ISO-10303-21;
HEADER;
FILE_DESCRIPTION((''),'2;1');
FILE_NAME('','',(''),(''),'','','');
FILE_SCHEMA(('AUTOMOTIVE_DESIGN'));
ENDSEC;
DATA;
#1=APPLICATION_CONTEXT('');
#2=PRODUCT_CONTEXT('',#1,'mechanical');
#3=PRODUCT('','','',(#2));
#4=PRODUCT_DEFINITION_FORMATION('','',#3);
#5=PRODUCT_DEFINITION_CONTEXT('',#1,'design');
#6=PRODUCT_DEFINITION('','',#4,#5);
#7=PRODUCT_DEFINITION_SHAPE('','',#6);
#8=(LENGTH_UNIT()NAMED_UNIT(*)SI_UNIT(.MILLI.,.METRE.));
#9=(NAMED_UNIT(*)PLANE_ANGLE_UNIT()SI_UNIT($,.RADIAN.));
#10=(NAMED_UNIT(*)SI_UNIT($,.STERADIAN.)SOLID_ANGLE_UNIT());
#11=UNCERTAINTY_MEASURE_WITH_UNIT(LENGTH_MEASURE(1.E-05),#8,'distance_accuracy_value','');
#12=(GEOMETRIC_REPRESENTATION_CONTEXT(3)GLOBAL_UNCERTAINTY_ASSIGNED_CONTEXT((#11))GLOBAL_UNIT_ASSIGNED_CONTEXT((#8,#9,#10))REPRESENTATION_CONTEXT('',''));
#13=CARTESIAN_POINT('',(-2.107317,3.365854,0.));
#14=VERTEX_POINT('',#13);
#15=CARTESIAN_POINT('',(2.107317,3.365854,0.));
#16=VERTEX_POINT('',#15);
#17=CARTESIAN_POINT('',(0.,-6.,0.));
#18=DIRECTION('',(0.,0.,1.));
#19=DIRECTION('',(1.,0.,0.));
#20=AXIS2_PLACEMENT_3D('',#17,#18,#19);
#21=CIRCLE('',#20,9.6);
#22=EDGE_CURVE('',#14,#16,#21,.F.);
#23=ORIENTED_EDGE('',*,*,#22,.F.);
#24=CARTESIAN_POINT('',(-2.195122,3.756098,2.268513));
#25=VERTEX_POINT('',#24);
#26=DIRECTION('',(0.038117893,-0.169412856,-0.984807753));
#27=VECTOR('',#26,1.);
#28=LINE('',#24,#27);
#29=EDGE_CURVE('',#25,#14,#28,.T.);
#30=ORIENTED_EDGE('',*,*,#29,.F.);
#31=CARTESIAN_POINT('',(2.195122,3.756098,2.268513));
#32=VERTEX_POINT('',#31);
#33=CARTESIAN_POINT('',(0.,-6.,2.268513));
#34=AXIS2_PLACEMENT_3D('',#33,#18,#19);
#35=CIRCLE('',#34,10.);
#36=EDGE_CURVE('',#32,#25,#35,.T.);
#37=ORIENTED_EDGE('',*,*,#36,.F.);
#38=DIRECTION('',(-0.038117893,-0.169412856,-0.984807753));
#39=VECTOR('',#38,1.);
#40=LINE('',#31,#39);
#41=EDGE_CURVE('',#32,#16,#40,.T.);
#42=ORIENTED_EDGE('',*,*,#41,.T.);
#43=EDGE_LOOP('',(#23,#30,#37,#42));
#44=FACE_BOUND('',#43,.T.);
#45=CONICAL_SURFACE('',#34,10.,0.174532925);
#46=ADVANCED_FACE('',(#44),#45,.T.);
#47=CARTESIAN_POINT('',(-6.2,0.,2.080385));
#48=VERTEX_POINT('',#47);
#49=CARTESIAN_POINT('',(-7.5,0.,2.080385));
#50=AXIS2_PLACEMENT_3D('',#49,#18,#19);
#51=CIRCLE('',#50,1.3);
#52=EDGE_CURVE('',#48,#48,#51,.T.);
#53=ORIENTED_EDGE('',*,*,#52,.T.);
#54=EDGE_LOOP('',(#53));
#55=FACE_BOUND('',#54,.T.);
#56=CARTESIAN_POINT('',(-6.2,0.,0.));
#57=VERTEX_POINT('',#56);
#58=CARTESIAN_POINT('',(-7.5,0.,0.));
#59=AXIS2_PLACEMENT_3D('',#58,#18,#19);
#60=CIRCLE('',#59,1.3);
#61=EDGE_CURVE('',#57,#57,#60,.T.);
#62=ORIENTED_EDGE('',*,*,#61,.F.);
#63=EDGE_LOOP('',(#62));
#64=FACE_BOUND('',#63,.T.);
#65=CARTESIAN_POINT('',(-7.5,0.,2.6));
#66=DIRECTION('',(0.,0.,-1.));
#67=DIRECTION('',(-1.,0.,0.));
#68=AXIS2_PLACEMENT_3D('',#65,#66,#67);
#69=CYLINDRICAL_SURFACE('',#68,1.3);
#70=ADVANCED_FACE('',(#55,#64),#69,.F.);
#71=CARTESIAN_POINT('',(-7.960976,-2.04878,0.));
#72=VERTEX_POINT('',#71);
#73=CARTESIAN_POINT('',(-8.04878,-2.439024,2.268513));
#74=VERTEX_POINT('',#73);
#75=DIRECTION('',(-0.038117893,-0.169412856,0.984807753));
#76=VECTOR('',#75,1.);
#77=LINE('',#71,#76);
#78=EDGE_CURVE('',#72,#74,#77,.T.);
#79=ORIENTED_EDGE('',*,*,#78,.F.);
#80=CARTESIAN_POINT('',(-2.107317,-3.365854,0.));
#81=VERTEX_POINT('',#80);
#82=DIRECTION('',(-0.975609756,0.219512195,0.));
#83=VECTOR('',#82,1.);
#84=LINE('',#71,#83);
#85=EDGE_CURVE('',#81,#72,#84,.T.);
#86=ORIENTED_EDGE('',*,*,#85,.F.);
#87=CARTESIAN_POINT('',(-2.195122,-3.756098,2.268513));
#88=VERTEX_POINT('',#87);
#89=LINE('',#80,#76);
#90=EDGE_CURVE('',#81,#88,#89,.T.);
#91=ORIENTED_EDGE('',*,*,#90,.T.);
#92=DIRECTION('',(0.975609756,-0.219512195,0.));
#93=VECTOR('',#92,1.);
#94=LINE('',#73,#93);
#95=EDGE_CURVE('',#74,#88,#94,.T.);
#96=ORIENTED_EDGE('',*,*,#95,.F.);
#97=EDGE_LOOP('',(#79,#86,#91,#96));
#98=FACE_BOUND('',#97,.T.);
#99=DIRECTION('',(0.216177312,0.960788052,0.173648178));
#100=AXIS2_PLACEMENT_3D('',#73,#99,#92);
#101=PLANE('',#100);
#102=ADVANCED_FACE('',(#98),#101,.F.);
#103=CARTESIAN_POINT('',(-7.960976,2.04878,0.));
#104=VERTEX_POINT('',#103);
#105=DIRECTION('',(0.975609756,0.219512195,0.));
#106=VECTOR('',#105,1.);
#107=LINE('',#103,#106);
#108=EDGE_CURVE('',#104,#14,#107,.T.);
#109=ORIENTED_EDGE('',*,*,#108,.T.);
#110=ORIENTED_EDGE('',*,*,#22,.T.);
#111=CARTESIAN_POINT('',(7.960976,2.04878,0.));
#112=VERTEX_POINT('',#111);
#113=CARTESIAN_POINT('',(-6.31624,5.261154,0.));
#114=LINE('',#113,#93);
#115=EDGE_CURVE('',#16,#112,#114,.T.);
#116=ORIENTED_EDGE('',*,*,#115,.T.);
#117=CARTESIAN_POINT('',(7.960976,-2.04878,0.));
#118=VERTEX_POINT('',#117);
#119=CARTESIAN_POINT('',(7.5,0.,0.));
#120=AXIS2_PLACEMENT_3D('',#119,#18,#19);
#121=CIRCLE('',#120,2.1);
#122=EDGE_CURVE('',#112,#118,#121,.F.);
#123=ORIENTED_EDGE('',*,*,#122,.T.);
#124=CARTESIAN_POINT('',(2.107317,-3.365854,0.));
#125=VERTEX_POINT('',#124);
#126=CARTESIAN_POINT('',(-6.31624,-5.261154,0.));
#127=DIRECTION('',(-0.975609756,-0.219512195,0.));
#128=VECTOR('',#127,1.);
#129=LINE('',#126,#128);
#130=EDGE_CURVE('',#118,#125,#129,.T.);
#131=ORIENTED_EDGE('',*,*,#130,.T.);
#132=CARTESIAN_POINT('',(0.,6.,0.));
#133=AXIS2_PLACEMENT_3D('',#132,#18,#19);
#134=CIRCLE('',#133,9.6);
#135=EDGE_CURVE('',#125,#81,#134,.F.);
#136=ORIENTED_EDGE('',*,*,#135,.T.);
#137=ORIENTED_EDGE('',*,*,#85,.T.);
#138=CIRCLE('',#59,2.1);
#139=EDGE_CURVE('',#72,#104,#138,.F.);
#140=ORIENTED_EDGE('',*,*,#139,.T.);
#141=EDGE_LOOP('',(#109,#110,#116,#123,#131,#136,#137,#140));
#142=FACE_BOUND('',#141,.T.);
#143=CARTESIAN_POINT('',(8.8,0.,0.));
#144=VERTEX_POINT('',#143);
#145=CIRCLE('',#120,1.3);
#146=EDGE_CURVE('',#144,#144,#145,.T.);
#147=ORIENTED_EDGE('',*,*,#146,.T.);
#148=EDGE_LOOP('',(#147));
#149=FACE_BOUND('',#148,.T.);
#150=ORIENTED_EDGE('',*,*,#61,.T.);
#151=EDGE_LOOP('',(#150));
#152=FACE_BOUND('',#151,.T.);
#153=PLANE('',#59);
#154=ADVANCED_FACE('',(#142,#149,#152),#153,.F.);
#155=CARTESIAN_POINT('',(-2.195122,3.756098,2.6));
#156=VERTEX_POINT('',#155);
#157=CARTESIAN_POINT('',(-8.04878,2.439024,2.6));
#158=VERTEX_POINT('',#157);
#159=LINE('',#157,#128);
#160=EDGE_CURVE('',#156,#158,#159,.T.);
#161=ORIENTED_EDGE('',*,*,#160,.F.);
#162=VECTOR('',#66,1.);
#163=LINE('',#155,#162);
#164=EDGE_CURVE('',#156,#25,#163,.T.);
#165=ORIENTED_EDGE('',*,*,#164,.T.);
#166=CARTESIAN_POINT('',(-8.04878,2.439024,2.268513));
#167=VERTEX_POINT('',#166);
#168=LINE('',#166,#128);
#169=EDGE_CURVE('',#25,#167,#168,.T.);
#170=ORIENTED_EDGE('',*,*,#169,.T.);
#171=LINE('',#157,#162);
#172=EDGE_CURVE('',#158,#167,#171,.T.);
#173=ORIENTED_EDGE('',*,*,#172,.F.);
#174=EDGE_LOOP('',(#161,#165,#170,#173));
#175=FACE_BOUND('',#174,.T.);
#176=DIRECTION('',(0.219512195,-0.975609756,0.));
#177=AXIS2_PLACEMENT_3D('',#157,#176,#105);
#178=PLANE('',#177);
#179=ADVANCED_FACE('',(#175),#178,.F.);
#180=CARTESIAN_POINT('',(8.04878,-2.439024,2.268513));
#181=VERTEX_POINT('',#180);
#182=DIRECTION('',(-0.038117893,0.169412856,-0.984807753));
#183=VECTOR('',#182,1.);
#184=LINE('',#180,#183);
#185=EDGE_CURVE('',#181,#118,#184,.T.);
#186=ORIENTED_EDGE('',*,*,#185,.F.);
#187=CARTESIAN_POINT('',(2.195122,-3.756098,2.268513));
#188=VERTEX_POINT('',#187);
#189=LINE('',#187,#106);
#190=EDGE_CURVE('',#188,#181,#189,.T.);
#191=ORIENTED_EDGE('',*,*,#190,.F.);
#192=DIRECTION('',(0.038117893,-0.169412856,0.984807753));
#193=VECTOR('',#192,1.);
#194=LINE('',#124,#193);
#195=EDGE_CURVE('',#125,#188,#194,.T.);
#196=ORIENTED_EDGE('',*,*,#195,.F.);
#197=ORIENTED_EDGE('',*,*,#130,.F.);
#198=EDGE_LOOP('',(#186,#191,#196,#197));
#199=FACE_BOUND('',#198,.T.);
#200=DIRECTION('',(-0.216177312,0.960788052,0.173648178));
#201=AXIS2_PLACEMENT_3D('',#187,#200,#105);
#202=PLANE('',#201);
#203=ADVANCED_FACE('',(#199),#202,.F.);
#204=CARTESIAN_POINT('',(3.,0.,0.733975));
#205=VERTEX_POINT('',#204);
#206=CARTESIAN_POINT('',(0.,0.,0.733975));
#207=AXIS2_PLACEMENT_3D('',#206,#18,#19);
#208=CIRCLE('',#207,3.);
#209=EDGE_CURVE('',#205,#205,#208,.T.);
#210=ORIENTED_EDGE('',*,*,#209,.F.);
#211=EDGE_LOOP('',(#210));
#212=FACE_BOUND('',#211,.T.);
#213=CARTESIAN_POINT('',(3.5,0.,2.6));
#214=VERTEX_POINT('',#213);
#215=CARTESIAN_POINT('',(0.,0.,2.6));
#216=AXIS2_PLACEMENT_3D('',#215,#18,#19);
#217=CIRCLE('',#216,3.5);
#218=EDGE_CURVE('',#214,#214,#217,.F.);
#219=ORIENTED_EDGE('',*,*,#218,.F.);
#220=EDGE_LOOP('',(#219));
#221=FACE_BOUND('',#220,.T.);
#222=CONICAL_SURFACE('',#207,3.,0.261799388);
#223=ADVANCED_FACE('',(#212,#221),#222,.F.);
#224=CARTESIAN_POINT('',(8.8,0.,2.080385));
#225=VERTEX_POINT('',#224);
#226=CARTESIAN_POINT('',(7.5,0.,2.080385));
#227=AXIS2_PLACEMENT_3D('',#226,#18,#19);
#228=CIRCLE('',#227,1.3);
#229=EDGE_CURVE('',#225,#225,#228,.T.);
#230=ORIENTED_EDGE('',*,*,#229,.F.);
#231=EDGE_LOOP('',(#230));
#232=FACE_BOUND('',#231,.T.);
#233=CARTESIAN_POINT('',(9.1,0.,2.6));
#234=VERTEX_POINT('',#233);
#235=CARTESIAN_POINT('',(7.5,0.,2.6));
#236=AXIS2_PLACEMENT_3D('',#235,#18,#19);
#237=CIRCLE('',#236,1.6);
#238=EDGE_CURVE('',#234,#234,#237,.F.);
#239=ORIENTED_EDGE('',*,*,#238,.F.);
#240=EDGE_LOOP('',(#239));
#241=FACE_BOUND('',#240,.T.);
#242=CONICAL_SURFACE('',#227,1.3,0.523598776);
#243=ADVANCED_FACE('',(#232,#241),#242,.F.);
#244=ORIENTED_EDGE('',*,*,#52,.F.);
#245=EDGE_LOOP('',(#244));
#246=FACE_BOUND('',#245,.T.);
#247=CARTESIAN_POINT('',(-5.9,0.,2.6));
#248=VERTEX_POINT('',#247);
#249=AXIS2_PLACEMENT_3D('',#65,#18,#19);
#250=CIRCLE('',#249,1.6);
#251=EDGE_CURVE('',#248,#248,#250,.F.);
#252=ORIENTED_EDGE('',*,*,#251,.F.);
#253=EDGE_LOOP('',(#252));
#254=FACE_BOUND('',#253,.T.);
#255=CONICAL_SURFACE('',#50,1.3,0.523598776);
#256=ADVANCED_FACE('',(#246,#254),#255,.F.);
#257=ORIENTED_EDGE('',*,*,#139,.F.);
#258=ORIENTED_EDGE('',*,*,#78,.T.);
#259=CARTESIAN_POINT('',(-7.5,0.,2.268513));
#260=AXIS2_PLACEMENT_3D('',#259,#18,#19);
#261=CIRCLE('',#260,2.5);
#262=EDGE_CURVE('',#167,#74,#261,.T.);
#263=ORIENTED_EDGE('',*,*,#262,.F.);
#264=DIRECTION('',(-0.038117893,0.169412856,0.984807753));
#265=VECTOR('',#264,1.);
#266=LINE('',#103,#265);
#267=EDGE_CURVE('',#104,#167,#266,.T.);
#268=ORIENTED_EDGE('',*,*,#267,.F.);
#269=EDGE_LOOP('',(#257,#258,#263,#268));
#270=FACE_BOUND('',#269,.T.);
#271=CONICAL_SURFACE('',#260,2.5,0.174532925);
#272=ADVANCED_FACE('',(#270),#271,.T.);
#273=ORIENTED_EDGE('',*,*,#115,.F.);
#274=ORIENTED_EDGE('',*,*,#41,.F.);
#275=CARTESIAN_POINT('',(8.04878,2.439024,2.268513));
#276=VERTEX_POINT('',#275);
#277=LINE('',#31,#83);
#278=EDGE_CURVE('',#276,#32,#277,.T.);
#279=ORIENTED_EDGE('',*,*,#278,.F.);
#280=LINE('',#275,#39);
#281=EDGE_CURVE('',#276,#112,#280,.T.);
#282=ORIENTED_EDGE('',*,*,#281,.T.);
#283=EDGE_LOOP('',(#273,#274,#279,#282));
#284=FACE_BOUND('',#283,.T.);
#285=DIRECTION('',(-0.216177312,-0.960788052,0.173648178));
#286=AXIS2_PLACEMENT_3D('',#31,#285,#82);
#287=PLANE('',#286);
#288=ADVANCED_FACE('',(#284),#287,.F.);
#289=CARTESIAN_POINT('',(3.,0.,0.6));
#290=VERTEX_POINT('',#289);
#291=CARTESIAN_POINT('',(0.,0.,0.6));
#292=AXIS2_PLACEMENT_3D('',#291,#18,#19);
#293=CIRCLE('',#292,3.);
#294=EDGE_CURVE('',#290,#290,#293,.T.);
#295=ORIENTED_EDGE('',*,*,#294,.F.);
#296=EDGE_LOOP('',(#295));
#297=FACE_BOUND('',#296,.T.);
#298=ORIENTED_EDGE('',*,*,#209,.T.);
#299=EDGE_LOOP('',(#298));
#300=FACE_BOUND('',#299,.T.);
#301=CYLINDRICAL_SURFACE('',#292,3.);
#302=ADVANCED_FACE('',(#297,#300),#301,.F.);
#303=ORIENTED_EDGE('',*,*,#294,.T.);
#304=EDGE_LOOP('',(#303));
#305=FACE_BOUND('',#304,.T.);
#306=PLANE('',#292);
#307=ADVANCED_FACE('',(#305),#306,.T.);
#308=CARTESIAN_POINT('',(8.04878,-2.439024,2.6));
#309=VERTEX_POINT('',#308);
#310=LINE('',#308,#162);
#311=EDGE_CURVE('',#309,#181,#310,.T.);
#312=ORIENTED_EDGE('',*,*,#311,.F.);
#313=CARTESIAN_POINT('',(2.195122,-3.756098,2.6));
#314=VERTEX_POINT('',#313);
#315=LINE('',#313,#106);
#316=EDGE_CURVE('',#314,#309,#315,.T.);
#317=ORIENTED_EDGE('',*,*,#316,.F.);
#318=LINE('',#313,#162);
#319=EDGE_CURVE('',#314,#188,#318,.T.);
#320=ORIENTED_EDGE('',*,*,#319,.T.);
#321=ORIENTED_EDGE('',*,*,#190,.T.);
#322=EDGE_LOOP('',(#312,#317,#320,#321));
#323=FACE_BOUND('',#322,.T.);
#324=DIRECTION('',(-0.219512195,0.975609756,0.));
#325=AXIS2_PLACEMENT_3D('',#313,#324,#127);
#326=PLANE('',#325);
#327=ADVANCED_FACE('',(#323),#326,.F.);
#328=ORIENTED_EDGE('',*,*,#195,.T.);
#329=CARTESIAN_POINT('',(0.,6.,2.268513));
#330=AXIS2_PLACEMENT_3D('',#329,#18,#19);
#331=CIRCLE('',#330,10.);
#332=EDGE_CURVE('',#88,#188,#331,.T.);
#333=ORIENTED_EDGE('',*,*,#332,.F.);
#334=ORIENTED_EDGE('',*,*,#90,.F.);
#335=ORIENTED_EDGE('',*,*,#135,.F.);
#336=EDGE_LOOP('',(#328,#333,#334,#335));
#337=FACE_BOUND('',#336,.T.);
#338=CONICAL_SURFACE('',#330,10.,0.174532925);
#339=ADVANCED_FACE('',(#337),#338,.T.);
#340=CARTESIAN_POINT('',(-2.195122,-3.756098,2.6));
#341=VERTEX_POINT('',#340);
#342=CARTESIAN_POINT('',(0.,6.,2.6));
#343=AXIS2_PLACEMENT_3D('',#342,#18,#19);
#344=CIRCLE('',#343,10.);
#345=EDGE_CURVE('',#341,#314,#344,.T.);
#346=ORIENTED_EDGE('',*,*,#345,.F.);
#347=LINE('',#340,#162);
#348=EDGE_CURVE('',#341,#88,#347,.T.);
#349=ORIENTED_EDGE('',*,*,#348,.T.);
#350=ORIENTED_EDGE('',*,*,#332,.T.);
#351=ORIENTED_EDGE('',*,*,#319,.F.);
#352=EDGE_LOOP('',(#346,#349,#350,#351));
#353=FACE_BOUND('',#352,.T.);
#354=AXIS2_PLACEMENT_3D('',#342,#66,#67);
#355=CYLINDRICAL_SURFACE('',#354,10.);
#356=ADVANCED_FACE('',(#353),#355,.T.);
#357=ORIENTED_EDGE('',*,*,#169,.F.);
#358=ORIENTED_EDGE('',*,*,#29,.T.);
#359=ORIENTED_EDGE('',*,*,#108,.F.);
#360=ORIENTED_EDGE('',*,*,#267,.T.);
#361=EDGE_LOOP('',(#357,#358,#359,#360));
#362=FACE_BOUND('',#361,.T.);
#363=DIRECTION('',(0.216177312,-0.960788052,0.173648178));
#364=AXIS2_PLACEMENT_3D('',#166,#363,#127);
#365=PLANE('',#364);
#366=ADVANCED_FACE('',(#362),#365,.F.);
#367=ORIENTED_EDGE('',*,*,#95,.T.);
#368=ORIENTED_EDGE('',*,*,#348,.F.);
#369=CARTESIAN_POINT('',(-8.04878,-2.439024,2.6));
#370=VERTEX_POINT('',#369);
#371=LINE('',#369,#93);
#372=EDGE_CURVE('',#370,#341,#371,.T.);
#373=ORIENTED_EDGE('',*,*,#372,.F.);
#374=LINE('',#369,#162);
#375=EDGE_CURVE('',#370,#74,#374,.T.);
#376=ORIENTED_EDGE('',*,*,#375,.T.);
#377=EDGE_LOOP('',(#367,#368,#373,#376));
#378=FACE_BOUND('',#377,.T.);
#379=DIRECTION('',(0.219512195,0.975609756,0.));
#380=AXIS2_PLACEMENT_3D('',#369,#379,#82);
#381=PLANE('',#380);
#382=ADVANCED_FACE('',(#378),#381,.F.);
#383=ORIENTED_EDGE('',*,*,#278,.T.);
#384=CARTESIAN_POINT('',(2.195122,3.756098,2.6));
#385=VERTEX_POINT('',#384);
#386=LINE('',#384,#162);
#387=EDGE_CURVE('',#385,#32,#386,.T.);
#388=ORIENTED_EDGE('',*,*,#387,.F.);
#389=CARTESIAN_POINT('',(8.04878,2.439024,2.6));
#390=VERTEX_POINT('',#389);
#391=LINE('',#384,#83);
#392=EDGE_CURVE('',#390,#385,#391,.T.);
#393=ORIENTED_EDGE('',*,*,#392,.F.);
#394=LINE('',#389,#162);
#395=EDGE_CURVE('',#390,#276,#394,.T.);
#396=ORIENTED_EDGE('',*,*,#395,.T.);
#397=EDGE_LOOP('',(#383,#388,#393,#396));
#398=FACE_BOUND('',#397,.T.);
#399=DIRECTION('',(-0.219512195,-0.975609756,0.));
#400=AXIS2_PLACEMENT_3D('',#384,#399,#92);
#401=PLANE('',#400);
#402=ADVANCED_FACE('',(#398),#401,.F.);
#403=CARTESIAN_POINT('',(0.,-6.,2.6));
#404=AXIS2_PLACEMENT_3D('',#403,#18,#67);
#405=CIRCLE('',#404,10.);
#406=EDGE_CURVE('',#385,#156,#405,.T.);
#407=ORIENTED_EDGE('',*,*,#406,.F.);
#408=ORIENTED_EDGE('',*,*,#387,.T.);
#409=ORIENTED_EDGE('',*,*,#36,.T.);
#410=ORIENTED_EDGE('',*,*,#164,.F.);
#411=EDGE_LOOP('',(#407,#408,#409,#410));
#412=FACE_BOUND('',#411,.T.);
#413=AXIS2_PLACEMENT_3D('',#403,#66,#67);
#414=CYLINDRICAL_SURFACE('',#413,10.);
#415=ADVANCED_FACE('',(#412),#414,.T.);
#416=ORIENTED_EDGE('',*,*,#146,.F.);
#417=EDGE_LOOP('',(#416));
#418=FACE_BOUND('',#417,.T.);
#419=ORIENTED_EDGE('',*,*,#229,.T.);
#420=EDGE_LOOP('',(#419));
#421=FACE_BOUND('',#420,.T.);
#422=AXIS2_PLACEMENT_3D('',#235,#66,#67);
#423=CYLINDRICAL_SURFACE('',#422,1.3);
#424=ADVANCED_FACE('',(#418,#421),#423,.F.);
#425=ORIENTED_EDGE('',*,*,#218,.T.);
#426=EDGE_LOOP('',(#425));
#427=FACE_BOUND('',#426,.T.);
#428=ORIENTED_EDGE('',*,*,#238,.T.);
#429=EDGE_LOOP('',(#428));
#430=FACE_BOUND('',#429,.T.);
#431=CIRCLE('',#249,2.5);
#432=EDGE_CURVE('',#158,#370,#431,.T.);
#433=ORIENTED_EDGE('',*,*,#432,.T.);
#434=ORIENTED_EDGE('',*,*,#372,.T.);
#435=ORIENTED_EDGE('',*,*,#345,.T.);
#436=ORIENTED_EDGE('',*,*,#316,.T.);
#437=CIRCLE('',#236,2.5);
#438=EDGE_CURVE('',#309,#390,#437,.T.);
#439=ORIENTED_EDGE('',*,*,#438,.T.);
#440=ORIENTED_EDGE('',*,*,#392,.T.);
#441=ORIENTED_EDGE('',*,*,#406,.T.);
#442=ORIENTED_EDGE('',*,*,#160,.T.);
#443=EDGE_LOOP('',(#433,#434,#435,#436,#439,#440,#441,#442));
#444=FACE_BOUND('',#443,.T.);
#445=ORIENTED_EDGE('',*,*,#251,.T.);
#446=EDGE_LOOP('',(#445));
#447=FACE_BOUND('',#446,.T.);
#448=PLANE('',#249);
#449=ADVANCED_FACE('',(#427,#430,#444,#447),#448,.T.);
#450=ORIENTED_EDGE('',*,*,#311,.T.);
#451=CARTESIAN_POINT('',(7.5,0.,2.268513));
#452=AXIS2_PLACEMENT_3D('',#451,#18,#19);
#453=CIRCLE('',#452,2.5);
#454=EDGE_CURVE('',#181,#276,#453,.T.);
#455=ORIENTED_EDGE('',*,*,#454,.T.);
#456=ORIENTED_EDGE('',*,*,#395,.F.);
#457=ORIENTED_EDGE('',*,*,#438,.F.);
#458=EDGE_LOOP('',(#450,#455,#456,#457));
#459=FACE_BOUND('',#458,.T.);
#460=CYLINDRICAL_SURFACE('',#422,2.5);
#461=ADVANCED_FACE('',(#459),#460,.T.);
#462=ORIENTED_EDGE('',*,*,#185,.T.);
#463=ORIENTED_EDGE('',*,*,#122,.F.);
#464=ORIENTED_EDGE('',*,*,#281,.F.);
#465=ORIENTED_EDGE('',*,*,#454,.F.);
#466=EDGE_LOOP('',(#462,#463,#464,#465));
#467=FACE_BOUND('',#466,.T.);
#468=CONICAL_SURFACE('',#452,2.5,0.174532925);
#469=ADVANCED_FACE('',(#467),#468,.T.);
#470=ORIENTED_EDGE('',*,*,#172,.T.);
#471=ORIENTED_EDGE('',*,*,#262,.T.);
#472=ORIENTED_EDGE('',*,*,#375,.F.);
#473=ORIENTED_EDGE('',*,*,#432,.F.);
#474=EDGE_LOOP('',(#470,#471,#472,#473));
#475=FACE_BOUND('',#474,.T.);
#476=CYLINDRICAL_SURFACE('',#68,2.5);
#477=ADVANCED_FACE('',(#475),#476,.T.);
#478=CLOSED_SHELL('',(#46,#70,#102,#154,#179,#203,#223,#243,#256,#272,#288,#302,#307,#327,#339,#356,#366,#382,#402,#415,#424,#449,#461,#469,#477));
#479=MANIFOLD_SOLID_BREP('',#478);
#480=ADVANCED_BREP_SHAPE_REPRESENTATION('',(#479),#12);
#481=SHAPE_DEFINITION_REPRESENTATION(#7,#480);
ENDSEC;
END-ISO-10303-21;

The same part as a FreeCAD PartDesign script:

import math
import FreeCAD as App
import Part
import Sketcher

V = App.Vector


def edges_at(feature, points):
    """Names of the edges that pass closest to the given points."""
    edges = feature.Shape.Edges
    near = lambda p: min(range(len(edges)), key=lambda i: edges[i].distToShape(Part.Vertex(*p))[0])
    return sorted({f"Edge{near(p) + 1}" for p in points})

doc = App.newDocument("Part")
body = doc.addObject("PartDesign::Body", "Body")

sketch1 = body.newObject("Sketcher::SketchObject", "Sketch")
sketch1.AttachmentSupport = (doc.getObject("XY_Plane"), [""])
sketch1.MapMode = "FlatFace"
sketch1.addGeometry([
    Part.LineSegment(V(-2.2, 3.8, 0), V(-8, 2.4, 0)),
    Part.ArcOfCircle(Part.Circle(V(-7.5, 0, 0), V(0, 0, 1), 2.5), math.radians(103), math.radians(257)),
    Part.LineSegment(V(-8, -2.4, 0), V(-2.2, -3.8, 0)),
    Part.ArcOfCircle(Part.Circle(V(0, 6, 0), V(0, 0, 1), 10), math.radians(-103), math.radians(-77)),
    Part.LineSegment(V(2.2, -3.8, 0), V(8, -2.4, 0)),
    Part.ArcOfCircle(Part.Circle(V(7.5, 0, 0), V(0, 0, 1), 2.5), math.radians(-77), math.radians(77)),
    Part.LineSegment(V(8, 2.4, 0), V(2.2, 3.8, 0)),
    Part.ArcOfCircle(Part.Circle(V(0, -6, 0), V(0, 0, 1), 10), math.radians(77), math.radians(103)),
    Part.Circle(V(7.5, 0, 0), V(0, 0, 1), 1.3),
    Part.Circle(V(-7.5, 0, 0), V(0, 0, 1), 1.3),
], False)
sketch1.addConstraint([
    Sketcher.Constraint("Tangent", 0, 2, 1, 1),
    Sketcher.Constraint("Tangent", 1, 2, 2, 1),
    Sketcher.Constraint("Tangent", 2, 2, 3, 1),
    Sketcher.Constraint("Tangent", 3, 2, 4, 1),
    Sketcher.Constraint("Tangent", 4, 2, 5, 1),
    Sketcher.Constraint("Tangent", 5, 2, 6, 1),
    Sketcher.Constraint("Tangent", 6, 2, 7, 1),
    Sketcher.Constraint("Tangent", 7, 2, 0, 1),
    Sketcher.Constraint("Coincident", 8, 3, 5, 3),
    Sketcher.Constraint("Coincident", 9, 3, 1, 3),
    Sketcher.Constraint("Equal", 1, 5),
    Sketcher.Constraint("Equal", 3, 7),
    Sketcher.Constraint("Equal", 8, 9),
    Sketcher.Constraint("Symmetric", 1, 3, 5, 3, -1, 1),
    Sketcher.Constraint("Symmetric", 3, 3, 7, 3, -1, 1),
    Sketcher.Constraint("Symmetric", 2, 2, 3, 2, -2),
    Sketcher.Constraint("Radius", 3, 10.0),
    Sketcher.Constraint("Diameter", 8, 2.6),
    Sketcher.Constraint("Radius", 1, 2.5),
    Sketcher.Constraint("Distance", 0, 6.0),
    Sketcher.Constraint("DistanceY", -1, 1, 3, 3, 6.0),
])
pad1 = body.newObject("PartDesign::Pad", "Pad")
pad1.Profile = sketch1
pad1.Length = 2.6

sketch2 = body.newObject("Sketcher::SketchObject", "Sketch001")
sketch2.AttachmentSupport = (doc.getObject("XY_Plane"), [""])
sketch2.MapMode = "FlatFace"
sketch2.AttachmentOffset = App.Placement(V(0, 0, 2.6), App.Rotation())
sketch2.addGeometry(Part.Circle(V(0, 0, 0), V(0, 0, 1), 3), False)
sketch2.addConstraint([
    Sketcher.Constraint("Coincident", 0, 3, -1, 1),
    Sketcher.Constraint("Diameter", 0, 6.0),
])
pocket1 = body.newObject("PartDesign::Pocket", "Pocket")
pocket1.Profile = sketch2
pocket1.Length = 2
doc.recompute()

chamfer = body.newObject("PartDesign::Chamfer", "Chamfer")
chamfer.Base = (pocket1, edges_at(pocket1, [
    (-5.122, -3.098, 0),
    (-10, 0, 0),
    (-5.122, 3.098, 0),
    (0, 4, 0),
    (5.122, 3.098, 0),
    (10, 0, 0),
    (5.122, -3.098, 0),
    (0, -4, 0),
]))
chamfer.ChamferType = "Two distances"
chamfer.Size = 0.4
chamfer.Size2 = 2.268513
doc.recompute()

chamfer2 = body.newObject("PartDesign::Chamfer", "Chamfer001")
chamfer2.Base = (chamfer, edges_at(chamfer, [(-3, 0, 2.6)]))
chamfer2.ChamferType = "Two distances"
chamfer2.Size = 0.5
chamfer2.Size2 = 1.866025
doc.recompute()

chamfer3 = body.newObject("PartDesign::Chamfer", "Chamfer002")
chamfer3.Base = (chamfer2, edges_at(chamfer2, [(6.2, 0, 2.6), (-8.8, 0, 2.6)]))
chamfer3.ChamferType = "Two distances"
chamfer3.Size = 0.3
chamfer3.Size2 = 0.519615

doc.recompute()
